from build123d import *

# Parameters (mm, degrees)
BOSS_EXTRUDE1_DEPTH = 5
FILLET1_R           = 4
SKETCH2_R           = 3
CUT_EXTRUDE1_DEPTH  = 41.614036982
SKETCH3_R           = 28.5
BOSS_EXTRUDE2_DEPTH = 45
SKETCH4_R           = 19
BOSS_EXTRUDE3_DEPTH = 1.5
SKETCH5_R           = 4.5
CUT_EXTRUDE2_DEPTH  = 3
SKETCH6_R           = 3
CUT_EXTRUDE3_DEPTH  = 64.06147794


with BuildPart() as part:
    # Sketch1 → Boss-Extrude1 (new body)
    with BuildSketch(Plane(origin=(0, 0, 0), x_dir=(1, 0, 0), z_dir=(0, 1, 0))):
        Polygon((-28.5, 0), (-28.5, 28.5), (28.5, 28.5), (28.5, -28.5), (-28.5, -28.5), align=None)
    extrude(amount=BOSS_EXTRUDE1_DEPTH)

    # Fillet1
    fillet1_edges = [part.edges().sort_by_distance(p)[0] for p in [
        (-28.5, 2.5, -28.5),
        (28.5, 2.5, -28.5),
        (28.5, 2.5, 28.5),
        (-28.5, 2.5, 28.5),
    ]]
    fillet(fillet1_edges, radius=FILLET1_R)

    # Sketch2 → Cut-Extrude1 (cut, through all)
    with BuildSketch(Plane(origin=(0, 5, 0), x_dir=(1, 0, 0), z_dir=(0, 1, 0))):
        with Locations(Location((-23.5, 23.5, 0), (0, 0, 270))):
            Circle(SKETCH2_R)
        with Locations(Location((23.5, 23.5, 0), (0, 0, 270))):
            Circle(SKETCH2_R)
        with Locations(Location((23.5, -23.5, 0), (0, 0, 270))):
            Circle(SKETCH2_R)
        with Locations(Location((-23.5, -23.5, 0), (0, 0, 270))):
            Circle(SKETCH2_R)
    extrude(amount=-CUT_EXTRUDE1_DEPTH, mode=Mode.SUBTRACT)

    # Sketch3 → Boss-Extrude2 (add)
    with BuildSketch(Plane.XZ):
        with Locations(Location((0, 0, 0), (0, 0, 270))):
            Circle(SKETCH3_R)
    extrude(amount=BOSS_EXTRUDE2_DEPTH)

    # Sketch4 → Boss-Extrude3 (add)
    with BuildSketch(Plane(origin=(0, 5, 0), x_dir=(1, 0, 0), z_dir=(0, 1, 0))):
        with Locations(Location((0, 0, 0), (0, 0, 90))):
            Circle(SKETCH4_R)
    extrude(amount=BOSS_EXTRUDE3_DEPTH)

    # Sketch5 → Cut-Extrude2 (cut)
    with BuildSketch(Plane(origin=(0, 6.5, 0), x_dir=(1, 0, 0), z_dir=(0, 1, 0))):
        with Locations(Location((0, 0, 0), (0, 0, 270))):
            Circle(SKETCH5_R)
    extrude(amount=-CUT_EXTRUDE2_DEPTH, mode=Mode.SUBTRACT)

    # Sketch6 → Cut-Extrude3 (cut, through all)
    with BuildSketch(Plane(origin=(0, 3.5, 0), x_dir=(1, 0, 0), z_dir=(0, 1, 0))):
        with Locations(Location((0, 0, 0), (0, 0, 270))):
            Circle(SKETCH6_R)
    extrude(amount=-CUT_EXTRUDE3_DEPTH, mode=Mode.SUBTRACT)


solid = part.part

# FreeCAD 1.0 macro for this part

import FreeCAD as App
import Part
import Sketcher
from FreeCAD import Vector


def edges_at(feature, points):
    """Names of the edges that pass closest to the given points."""
    edges = feature.Shape.Edges
    near = lambda p: min(range(len(edges)), key=lambda i: edges[i].distToShape(Part.Vertex(*p))[0])
    return sorted({f"Edge{near(p) + 1}" for p in points})


def add_polygon(sketch, points):
    """Adds a closed chain of lines whose ends are joined by coincident constraints."""
    first, n = sketch.GeometryCount, len(points)
    for a, b in zip(points, points[1:] + points[:1]):
        sketch.addGeometry(Part.LineSegment(App.Vector(*a, 0), App.Vector(*b, 0)), False)
    for i in range(n):
        sketch.addConstraint(Sketcher.Constraint("Coincident", first + i, 2, first + (i + 1) % n, 1))

doc = App.newDocument("Part")
body = doc.addObject("PartDesign::Body", "Body")

sketch1 = body.newObject("Sketcher::SketchObject", "Sketch")
sketch1.AttachmentSupport = (doc.getObject("XZ_Plane"), [""])
sketch1.MapMode = "FlatFace"
add_polygon(sketch1, [(-28.5, -28.5), (-28.5, 28.5), (28.5, 28.5), (28.5, -28.5)])
sketch1.addConstraint(Sketcher.Constraint("Vertical", 0))
sketch1.addConstraint(Sketcher.Constraint("Horizontal", 1))
sketch1.addConstraint(Sketcher.Constraint("Vertical", 2))
sketch1.addConstraint(Sketcher.Constraint("Horizontal", 3))
sketch1.addConstraint(Sketcher.Constraint("Symmetric", 0, 2, 2, 2, -1, 1))
sketch1.addConstraint(Sketcher.Constraint("Equal", 3, 0))
sketch1.addConstraint(Sketcher.Constraint("DistanceX", 1, 1, 1, 2, 57.0))
pad1 = body.newObject("PartDesign::Pad", "Pad")
pad1.Profile = sketch1
pad1.Length = 5
pad1.Reversed = True
doc.recompute()

fillet = body.newObject("PartDesign::Fillet", "Fillet")
fillet.Base = (pad1, edges_at(pad1, [
    (-28.5, 2.5, -28.5),
    (28.5, 2.5, -28.5),
    (28.5, 2.5, 28.5),
    (-28.5, 2.5, 28.5),
]))
fillet.Radius = 4

sketch2 = body.newObject("Sketcher::SketchObject", "Sketch001")
sketch2.AttachmentSupport = (doc.getObject("XZ_Plane"), [""])
sketch2.MapMode = "FlatFace"
sketch2.AttachmentOffset = App.Placement(Vector(0, 0, -5), App.Rotation())
sketch2.addGeometry(Part.Circle(Vector(-23.5, -23.5, 0), Vector(0, 0, 1), 3), False)
sketch2.addGeometry(Part.Circle(Vector(23.5, -23.5, 0), Vector(0, 0, 1), 3), False)
sketch2.addGeometry(Part.Circle(Vector(23.5, 23.5, 0), Vector(0, 0, 1), 3), False)
sketch2.addGeometry(Part.Circle(Vector(-23.5, 23.5, 0), Vector(0, 0, 1), 3), False)
sketch2.addConstraint(Sketcher.Constraint("Equal", 0, 1))
sketch2.addConstraint(Sketcher.Constraint("Equal", 1, 2))
sketch2.addConstraint(Sketcher.Constraint("Equal", 2, 3))
sketch2.addConstraint(Sketcher.Constraint("Symmetric", 0, 3, 2, 3, -1, 1))
sketch2.addConstraint(Sketcher.Constraint("Symmetric", 1, 3, 3, 3, -1, 1))
sketch2.addConstraint(Sketcher.Constraint("Symmetric", 0, 3, 1, 3, -2))
sketch2.addConstraint(Sketcher.Constraint("Diameter", 0, 6.0))
sketch2.addConstraint(Sketcher.Constraint("DistanceX", 0, 3, 1, 3, 47.0))
sketch2.addConstraint(Sketcher.Constraint("DistanceY", 1, 3, 2, 3, 47.0))
pocket1 = body.newObject("PartDesign::Pocket", "Pocket")
pocket1.Profile = sketch2
pocket1.Type = "ThroughAll"
pocket1.Reversed = True

sketch3 = body.newObject("Sketcher::SketchObject", "Sketch002")
sketch3.AttachmentSupport = (doc.getObject("XZ_Plane"), [""])
sketch3.MapMode = "FlatFace"
sketch3.addGeometry(Part.Circle(Vector(0, 0, 0), Vector(0, 0, 1), 28.5), False)
sketch3.addConstraint(Sketcher.Constraint("Coincident", 0, 3, -1, 1))
sketch3.addConstraint(Sketcher.Constraint("Diameter", 0, 57.0))
pad2 = body.newObject("PartDesign::Pad", "Pad001")
pad2.Profile = sketch3
pad2.Length = 45

sketch4 = body.newObject("Sketcher::SketchObject", "Sketch003")
sketch4.AttachmentSupport = (doc.getObject("XZ_Plane"), [""])
sketch4.MapMode = "FlatFace"
sketch4.AttachmentOffset = App.Placement(Vector(0, 0, -5), App.Rotation())
sketch4.addGeometry(Part.Circle(Vector(0, 0, 0), Vector(0, 0, 1), 19), False)
sketch4.addConstraint(Sketcher.Constraint("Coincident", 0, 3, -1, 1))
sketch4.addConstraint(Sketcher.Constraint("Diameter", 0, 38.0))
pad3 = body.newObject("PartDesign::Pad", "Pad002")
pad3.Profile = sketch4
pad3.Length = 1.5
pad3.Reversed = True

sketch5 = body.newObject("Sketcher::SketchObject", "Sketch004")
sketch5.AttachmentSupport = (doc.getObject("XZ_Plane"), [""])
sketch5.MapMode = "FlatFace"
sketch5.AttachmentOffset = App.Placement(Vector(0, 0, -6.5), App.Rotation())
sketch5.addGeometry(Part.Circle(Vector(0, 0, 0), Vector(0, 0, 1), 4.5), False)
sketch5.addConstraint(Sketcher.Constraint("Coincident", 0, 3, -1, 1))
sketch5.addConstraint(Sketcher.Constraint("Diameter", 0, 9.0))
pocket2 = body.newObject("PartDesign::Pocket", "Pocket001")
pocket2.Profile = sketch5
pocket2.Length = 3
pocket2.Reversed = True

sketch6 = body.newObject("Sketcher::SketchObject", "Sketch005")
sketch6.AttachmentSupport = (doc.getObject("XZ_Plane"), [""])
sketch6.MapMode = "FlatFace"
sketch6.AttachmentOffset = App.Placement(Vector(0, 0, -3.5), App.Rotation())
sketch6.addGeometry(Part.Circle(Vector(0, 0, 0), Vector(0, 0, 1), 3), False)
sketch6.addConstraint(Sketcher.Constraint("Coincident", 0, 3, -1, 1))
sketch6.addConstraint(Sketcher.Constraint("Diameter", 0, 6.0))
pocket3 = body.newObject("PartDesign::Pocket", "Pocket002")
pocket3.Profile = sketch6
pocket3.Type = "ThroughAll"
pocket3.Reversed = True

doc.recompute()
